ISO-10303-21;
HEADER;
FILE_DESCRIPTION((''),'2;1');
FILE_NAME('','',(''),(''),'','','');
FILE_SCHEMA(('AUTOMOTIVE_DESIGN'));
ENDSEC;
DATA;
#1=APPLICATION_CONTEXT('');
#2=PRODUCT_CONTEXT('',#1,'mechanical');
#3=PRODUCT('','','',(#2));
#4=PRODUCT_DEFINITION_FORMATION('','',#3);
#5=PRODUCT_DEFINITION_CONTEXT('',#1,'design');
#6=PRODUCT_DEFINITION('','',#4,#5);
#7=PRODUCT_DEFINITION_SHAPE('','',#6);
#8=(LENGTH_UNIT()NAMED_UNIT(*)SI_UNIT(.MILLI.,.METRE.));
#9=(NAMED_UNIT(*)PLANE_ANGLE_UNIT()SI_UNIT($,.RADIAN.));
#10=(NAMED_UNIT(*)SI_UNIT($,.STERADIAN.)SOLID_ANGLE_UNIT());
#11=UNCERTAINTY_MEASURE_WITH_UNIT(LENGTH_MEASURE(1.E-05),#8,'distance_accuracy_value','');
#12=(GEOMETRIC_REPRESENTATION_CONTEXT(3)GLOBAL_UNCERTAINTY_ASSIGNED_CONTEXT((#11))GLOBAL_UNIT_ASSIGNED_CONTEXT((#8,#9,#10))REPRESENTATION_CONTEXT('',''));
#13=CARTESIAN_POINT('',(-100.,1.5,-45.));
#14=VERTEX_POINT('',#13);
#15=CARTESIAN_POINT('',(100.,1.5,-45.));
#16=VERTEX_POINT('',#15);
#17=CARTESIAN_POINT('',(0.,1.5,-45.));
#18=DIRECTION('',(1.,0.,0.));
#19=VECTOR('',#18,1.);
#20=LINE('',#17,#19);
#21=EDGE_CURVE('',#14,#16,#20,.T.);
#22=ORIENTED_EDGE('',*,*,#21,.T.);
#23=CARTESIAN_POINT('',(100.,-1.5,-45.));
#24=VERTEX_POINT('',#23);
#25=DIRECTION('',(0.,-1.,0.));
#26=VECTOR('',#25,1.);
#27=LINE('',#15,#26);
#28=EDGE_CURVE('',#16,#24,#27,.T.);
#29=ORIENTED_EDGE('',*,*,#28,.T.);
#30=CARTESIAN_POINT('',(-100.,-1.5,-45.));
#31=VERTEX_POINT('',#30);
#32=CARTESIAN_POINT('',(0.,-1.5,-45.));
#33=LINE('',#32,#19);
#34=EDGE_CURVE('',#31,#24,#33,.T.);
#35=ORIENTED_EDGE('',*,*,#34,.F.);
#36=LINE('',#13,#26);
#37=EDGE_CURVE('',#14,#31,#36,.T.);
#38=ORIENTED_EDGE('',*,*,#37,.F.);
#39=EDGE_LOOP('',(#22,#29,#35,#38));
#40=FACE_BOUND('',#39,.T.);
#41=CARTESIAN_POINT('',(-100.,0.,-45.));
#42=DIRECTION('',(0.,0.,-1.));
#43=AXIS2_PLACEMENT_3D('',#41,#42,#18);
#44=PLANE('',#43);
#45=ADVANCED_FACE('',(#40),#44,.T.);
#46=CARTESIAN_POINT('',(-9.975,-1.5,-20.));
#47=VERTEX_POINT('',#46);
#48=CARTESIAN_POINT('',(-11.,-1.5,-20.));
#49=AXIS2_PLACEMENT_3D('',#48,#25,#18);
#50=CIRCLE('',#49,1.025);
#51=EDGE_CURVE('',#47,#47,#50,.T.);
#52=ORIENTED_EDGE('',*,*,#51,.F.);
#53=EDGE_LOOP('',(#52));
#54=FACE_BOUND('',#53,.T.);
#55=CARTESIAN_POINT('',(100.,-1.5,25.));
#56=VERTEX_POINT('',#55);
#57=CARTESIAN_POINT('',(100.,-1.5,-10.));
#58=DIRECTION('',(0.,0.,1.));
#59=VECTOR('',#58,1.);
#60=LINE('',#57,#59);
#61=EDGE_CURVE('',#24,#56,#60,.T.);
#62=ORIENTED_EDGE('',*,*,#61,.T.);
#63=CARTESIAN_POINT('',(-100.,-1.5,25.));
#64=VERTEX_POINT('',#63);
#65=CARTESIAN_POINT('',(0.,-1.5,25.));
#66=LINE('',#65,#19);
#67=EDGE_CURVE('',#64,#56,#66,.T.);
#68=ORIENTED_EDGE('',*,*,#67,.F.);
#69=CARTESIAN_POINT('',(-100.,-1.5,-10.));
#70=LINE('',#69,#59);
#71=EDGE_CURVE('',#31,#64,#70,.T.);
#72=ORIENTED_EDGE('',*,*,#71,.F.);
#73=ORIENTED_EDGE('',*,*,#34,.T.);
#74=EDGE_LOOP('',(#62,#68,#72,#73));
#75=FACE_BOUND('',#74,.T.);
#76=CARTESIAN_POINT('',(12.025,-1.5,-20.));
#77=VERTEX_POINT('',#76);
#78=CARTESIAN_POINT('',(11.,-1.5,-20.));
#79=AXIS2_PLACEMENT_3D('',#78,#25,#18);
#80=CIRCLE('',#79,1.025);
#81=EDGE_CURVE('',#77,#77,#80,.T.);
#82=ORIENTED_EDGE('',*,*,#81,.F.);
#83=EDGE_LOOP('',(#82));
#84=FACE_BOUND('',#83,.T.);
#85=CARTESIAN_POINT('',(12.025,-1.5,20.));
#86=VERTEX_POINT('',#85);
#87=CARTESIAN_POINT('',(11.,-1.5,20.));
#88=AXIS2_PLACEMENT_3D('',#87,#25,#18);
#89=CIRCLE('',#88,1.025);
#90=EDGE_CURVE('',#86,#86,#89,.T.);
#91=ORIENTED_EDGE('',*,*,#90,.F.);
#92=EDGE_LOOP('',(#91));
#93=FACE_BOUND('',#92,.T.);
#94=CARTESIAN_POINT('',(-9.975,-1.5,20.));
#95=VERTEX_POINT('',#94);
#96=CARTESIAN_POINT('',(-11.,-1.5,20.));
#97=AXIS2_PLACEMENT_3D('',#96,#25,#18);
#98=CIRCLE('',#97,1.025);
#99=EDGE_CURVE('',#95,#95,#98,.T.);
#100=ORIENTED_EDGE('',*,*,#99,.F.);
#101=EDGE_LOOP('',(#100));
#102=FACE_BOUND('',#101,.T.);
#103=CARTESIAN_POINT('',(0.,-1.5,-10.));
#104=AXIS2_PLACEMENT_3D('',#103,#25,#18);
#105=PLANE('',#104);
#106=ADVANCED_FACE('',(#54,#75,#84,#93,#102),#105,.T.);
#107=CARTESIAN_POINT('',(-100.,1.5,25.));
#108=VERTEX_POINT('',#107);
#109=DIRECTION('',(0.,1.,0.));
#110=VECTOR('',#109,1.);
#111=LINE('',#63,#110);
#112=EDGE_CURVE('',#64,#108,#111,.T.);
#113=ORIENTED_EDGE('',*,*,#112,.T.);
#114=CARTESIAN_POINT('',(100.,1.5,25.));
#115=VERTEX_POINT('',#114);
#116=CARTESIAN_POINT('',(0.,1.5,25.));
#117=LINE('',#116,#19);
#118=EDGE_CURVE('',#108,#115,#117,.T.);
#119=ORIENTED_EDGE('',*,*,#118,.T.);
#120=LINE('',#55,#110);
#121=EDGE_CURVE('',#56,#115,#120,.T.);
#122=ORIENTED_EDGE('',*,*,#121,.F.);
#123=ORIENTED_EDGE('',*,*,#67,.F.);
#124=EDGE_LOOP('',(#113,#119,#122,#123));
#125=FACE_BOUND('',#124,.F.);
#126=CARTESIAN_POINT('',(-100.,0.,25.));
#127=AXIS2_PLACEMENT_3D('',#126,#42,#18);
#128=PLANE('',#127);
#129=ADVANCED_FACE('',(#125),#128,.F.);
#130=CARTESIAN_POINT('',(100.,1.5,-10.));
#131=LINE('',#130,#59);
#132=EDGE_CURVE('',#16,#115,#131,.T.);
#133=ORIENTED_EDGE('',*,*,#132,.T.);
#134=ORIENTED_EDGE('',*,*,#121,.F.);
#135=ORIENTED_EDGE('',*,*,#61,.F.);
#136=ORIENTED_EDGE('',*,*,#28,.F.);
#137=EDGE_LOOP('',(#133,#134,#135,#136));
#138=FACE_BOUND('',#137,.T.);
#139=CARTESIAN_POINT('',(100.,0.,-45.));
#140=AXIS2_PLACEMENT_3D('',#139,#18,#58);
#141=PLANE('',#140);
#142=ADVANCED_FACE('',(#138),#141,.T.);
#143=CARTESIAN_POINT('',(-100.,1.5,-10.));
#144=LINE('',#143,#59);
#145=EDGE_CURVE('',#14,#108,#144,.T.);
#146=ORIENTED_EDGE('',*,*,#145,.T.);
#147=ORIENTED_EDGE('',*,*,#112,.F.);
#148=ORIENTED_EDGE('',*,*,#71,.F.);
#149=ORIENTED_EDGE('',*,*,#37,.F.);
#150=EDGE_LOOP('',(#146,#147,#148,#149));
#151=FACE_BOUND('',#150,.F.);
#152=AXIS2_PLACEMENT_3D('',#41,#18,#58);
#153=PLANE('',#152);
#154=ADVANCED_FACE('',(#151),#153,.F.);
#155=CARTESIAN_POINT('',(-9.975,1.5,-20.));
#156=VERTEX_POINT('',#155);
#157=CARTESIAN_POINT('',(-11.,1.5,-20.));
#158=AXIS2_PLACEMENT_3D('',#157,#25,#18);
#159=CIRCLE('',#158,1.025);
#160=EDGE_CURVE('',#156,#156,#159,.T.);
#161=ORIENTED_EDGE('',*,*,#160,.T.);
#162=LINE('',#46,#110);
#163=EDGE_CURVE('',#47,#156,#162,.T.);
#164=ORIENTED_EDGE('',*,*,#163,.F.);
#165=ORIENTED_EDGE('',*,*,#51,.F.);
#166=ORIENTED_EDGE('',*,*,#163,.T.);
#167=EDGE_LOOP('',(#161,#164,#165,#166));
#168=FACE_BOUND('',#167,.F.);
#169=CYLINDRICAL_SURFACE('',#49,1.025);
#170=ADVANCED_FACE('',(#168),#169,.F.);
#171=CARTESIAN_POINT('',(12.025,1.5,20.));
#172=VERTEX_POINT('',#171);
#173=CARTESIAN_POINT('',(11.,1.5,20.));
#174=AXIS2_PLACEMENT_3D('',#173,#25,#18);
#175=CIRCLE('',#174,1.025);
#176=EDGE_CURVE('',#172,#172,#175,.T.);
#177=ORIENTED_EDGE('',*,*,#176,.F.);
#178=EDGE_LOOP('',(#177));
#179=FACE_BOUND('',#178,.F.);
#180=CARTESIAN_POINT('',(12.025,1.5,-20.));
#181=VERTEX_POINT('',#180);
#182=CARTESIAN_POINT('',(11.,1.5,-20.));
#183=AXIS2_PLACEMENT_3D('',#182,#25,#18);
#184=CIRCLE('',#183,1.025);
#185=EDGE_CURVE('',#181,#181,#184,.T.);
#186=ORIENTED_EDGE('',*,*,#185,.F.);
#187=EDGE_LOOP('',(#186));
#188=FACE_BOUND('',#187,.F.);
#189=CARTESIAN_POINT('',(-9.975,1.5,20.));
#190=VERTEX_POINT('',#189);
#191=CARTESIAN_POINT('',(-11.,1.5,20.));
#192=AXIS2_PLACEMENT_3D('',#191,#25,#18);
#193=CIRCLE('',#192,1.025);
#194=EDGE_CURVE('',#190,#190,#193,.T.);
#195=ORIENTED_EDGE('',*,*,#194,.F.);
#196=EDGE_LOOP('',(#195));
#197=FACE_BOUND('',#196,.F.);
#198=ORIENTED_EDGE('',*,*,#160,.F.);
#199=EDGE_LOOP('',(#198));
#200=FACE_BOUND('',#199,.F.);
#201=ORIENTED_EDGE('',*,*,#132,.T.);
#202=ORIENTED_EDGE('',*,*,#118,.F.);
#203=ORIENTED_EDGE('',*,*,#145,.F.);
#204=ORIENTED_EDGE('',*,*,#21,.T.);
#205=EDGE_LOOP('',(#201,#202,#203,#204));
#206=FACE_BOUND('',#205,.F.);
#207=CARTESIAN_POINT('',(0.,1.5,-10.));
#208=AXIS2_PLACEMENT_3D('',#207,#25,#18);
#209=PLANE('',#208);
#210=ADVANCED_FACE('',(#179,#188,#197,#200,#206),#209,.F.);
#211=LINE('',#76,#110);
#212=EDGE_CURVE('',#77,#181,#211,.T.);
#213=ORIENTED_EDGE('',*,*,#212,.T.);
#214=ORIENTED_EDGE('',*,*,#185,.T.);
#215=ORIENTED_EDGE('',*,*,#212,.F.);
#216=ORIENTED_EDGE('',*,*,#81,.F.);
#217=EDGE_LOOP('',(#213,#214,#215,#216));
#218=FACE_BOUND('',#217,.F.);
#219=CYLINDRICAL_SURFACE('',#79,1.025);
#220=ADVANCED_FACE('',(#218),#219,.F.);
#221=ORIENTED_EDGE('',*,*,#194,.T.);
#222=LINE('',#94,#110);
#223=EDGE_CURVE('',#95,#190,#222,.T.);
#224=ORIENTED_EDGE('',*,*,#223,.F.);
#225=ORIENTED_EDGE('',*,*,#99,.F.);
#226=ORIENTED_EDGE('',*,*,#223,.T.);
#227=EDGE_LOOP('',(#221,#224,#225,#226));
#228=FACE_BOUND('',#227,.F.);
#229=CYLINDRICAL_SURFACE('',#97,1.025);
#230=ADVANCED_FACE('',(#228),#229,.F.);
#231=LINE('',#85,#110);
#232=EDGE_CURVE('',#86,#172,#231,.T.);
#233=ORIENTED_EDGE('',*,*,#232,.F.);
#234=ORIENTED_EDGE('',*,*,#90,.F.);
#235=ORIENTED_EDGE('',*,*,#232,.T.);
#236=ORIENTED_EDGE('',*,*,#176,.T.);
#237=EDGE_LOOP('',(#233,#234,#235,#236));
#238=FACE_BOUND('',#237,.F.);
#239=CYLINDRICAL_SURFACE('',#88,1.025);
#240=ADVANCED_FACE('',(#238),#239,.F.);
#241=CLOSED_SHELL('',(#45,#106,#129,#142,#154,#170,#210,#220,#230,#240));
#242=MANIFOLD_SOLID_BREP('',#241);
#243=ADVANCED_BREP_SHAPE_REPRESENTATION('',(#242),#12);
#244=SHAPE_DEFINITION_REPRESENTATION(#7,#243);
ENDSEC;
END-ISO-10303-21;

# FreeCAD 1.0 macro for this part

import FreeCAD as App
import Part
import Sketcher


def add_polygon(sketch, points):
    """Adds a closed chain of lines whose ends are joined by coincident constraints."""
    first, n = sketch.GeometryCount, len(points)
    for a, b in zip(points, points[1:] + points[:1]):
        sketch.addGeometry(Part.LineSegment(App.Vector(*a, 0), App.Vector(*b, 0)), False)
    for i in range(n):
        sketch.addConstraint(Sketcher.Constraint("Coincident", first + i, 2, first + (i + 1) % n, 1))

doc = App.newDocument("Part")
params = doc.addObject("Spreadsheet::Sheet", "Params")
for row, (alias, value) in enumerate([
    ("sketch1_width", "200 mm"),
    ("sketch1_height", "70 mm"),
    ("pad1_length", "3 mm"),
    ("sketch2_diameter", "2.05 mm"),
], start=1):
    params.set(f"A{row}", alias)
    params.set(f"B{row}", "=" + value)
    params.setAlias(f"B{row}", alias)

body = doc.addObject("PartDesign::Body", "Body")

sketch1 = body.newObject("Sketcher::SketchObject", "Sketch")
sketch1.AttachmentSupport = (doc.getObject("XZ_Plane"), [""])
sketch1.MapMode = "FlatFace"
add_polygon(sketch1, [(-100, 25), (-100, -45), (100, -45), (100, 25)])
sketch1.addConstraint([
    Sketcher.Constraint("Vertical", 0),
    Sketcher.Constraint("Horizontal", 1),
    Sketcher.Constraint("Vertical", 2),
    Sketcher.Constraint("Horizontal", 3),
    Sketcher.Constraint("DistanceX", 1, 1, 1, 2, 200.0),
    Sketcher.Constraint("DistanceY", 0, 2, 0, 1, 70.0),
    Sketcher.Constraint("DistanceX", 0, 2, -1, 1, 100.0),
    Sketcher.Constraint("DistanceY", 0, 2, -1, 1, 45.0),
])
sketch1.setExpression("Constraints[8]", "Params.sketch1_width")
sketch1.setExpression("Constraints[9]", "Params.sketch1_height")
pad1 = body.newObject("PartDesign::Pad", "Pad")
pad1.Profile = sketch1
pad1.setExpression("Length", "Params.pad1_length")
pad1.Midplane = True

sketch2 = body.newObject("Sketcher::SketchObject", "Sketch001")
sketch2.AttachmentSupport = (doc.getObject("XZ_Plane"), [""])
sketch2.MapMode = "FlatFace"
sketch2.AttachmentOffset = App.Placement(App.Vector(0, 0, 1.5), App.Rotation())
sketch2.addGeometry([
    Part.Circle(App.Vector(-11, 20, 0), App.Vector(0, 0, 1), 1),
    Part.Circle(App.Vector(11, 20, 0), App.Vector(0, 0, 1), 1),
    Part.Circle(App.Vector(11, -20, 0), App.Vector(0, 0, 1), 1),
    Part.Circle(App.Vector(-11, -20, 0), App.Vector(0, 0, 1), 1),
], False)
sketch2.addConstraint([
    Sketcher.Constraint("Equal", 0, 1),
    Sketcher.Constraint("Equal", 1, 2),
    Sketcher.Constraint("Equal", 2, 3),
    Sketcher.Constraint("Symmetric", 0, 3, 2, 3, -1, 1),
    Sketcher.Constraint("Symmetric", 1, 3, 3, 3, -1, 1),
    Sketcher.Constraint("Symmetric", 0, 3, 1, 3, -2),
    Sketcher.Constraint("Diameter", 0, 2.05),
    Sketcher.Constraint("DistanceX", 0, 3, -1, 1, 11.0),
    Sketcher.Constraint("DistanceY", -1, 1, 0, 3, 20.0),
])
sketch2.setExpression("Constraints[6]", "Params.sketch2_diameter")
pocket1 = body.newObject("PartDesign::Pocket", "Pocket")
pocket1.Profile = sketch2
pocket1.Type = "ThroughAll"

doc.recompute()
